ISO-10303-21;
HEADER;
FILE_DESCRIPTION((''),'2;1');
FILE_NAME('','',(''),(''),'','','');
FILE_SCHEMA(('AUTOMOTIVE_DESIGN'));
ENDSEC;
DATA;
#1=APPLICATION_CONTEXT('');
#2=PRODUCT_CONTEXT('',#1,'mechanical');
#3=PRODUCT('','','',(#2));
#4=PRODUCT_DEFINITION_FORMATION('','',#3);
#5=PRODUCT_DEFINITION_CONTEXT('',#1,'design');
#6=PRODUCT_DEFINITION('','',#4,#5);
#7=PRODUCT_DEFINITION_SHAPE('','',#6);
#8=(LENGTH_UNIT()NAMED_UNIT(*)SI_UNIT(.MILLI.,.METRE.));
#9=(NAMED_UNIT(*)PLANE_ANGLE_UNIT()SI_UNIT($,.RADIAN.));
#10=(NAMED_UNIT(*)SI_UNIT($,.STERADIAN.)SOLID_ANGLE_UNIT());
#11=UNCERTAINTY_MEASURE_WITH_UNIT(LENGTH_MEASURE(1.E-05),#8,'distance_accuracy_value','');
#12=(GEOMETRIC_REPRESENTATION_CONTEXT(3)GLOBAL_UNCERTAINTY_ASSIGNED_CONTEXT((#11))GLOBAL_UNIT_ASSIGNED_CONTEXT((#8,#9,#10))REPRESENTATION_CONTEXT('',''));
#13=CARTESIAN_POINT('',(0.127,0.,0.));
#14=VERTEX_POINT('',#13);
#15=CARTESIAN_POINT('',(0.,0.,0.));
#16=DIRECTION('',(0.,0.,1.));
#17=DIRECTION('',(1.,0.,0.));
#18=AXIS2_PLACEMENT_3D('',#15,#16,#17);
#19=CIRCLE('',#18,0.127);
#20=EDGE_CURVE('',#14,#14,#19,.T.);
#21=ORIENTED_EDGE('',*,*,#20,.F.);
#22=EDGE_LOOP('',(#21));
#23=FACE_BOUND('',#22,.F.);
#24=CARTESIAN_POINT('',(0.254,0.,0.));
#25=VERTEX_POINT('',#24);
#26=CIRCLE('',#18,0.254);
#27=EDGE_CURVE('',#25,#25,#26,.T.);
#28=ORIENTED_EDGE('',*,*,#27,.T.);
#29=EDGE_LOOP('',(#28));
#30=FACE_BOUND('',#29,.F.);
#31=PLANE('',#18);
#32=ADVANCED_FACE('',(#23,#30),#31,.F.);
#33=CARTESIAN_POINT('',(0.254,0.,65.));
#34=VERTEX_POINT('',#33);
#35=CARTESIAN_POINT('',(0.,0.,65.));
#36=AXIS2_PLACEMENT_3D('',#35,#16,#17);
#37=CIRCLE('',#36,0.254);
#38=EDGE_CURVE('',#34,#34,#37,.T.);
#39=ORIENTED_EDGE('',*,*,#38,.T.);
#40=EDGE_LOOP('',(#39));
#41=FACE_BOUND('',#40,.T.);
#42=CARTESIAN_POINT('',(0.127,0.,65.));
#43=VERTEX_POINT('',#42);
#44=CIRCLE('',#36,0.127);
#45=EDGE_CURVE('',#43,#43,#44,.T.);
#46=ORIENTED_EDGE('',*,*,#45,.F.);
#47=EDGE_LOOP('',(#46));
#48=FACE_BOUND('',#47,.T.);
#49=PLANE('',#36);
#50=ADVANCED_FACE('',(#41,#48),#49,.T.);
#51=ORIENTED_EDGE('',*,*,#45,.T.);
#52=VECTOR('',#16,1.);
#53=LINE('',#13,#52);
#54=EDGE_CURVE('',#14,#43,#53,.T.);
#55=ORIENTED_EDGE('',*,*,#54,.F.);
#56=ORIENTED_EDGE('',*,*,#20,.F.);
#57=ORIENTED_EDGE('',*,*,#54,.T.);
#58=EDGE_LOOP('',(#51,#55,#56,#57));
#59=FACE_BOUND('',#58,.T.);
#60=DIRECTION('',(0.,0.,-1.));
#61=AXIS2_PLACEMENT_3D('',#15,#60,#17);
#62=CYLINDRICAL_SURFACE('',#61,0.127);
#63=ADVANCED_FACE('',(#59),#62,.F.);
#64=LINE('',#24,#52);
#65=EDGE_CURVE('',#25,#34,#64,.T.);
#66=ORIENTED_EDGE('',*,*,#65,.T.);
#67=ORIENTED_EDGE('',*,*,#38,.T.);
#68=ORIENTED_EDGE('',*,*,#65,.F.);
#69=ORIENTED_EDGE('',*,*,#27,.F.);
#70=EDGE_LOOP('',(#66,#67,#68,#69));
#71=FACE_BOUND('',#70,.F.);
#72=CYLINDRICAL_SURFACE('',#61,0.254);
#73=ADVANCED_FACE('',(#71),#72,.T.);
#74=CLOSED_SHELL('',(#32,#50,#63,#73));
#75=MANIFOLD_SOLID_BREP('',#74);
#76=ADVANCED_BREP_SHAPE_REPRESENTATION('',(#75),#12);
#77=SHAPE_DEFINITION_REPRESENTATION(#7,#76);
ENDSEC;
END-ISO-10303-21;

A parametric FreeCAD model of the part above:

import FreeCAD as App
import Part
import Sketcher
from FreeCAD import Vector
Q = App.Units.Quantity

doc = App.newDocument("Part")
body = doc.addObject("PartDesign::Body", "Body")

# Sketch on XY plane
sketch1 = body.newObject("Sketcher::SketchObject", "Sketch")
sketch1.AttachmentSupport = (doc.getObject("XY_Plane"), [""])
sketch1.MapMode = "FlatFace"
sketch1.addGeometry([
    Part.Circle(Vector(0, 0, 0), Vector(0, 0, 1), 0.25),
    Part.Circle(Vector(0, 0, 0), Vector(0, 0, 1), 0.13),
], False)
sketch1.addConstraint([
    Sketcher.Constraint("Coincident", 0, 3, -1, 1),
    Sketcher.Constraint("Coincident", 1, 3, -1, 1),
    Sketcher.Constraint("Diameter", 0, Q("0.02 in")),
    Sketcher.Constraint("Diameter", 1, Q("0.01 in")),
])
pad1 = body.newObject("PartDesign::Pad", "Pad")
pad1.Profile = sketch1
pad1.Length = 65

doc.recompute()
